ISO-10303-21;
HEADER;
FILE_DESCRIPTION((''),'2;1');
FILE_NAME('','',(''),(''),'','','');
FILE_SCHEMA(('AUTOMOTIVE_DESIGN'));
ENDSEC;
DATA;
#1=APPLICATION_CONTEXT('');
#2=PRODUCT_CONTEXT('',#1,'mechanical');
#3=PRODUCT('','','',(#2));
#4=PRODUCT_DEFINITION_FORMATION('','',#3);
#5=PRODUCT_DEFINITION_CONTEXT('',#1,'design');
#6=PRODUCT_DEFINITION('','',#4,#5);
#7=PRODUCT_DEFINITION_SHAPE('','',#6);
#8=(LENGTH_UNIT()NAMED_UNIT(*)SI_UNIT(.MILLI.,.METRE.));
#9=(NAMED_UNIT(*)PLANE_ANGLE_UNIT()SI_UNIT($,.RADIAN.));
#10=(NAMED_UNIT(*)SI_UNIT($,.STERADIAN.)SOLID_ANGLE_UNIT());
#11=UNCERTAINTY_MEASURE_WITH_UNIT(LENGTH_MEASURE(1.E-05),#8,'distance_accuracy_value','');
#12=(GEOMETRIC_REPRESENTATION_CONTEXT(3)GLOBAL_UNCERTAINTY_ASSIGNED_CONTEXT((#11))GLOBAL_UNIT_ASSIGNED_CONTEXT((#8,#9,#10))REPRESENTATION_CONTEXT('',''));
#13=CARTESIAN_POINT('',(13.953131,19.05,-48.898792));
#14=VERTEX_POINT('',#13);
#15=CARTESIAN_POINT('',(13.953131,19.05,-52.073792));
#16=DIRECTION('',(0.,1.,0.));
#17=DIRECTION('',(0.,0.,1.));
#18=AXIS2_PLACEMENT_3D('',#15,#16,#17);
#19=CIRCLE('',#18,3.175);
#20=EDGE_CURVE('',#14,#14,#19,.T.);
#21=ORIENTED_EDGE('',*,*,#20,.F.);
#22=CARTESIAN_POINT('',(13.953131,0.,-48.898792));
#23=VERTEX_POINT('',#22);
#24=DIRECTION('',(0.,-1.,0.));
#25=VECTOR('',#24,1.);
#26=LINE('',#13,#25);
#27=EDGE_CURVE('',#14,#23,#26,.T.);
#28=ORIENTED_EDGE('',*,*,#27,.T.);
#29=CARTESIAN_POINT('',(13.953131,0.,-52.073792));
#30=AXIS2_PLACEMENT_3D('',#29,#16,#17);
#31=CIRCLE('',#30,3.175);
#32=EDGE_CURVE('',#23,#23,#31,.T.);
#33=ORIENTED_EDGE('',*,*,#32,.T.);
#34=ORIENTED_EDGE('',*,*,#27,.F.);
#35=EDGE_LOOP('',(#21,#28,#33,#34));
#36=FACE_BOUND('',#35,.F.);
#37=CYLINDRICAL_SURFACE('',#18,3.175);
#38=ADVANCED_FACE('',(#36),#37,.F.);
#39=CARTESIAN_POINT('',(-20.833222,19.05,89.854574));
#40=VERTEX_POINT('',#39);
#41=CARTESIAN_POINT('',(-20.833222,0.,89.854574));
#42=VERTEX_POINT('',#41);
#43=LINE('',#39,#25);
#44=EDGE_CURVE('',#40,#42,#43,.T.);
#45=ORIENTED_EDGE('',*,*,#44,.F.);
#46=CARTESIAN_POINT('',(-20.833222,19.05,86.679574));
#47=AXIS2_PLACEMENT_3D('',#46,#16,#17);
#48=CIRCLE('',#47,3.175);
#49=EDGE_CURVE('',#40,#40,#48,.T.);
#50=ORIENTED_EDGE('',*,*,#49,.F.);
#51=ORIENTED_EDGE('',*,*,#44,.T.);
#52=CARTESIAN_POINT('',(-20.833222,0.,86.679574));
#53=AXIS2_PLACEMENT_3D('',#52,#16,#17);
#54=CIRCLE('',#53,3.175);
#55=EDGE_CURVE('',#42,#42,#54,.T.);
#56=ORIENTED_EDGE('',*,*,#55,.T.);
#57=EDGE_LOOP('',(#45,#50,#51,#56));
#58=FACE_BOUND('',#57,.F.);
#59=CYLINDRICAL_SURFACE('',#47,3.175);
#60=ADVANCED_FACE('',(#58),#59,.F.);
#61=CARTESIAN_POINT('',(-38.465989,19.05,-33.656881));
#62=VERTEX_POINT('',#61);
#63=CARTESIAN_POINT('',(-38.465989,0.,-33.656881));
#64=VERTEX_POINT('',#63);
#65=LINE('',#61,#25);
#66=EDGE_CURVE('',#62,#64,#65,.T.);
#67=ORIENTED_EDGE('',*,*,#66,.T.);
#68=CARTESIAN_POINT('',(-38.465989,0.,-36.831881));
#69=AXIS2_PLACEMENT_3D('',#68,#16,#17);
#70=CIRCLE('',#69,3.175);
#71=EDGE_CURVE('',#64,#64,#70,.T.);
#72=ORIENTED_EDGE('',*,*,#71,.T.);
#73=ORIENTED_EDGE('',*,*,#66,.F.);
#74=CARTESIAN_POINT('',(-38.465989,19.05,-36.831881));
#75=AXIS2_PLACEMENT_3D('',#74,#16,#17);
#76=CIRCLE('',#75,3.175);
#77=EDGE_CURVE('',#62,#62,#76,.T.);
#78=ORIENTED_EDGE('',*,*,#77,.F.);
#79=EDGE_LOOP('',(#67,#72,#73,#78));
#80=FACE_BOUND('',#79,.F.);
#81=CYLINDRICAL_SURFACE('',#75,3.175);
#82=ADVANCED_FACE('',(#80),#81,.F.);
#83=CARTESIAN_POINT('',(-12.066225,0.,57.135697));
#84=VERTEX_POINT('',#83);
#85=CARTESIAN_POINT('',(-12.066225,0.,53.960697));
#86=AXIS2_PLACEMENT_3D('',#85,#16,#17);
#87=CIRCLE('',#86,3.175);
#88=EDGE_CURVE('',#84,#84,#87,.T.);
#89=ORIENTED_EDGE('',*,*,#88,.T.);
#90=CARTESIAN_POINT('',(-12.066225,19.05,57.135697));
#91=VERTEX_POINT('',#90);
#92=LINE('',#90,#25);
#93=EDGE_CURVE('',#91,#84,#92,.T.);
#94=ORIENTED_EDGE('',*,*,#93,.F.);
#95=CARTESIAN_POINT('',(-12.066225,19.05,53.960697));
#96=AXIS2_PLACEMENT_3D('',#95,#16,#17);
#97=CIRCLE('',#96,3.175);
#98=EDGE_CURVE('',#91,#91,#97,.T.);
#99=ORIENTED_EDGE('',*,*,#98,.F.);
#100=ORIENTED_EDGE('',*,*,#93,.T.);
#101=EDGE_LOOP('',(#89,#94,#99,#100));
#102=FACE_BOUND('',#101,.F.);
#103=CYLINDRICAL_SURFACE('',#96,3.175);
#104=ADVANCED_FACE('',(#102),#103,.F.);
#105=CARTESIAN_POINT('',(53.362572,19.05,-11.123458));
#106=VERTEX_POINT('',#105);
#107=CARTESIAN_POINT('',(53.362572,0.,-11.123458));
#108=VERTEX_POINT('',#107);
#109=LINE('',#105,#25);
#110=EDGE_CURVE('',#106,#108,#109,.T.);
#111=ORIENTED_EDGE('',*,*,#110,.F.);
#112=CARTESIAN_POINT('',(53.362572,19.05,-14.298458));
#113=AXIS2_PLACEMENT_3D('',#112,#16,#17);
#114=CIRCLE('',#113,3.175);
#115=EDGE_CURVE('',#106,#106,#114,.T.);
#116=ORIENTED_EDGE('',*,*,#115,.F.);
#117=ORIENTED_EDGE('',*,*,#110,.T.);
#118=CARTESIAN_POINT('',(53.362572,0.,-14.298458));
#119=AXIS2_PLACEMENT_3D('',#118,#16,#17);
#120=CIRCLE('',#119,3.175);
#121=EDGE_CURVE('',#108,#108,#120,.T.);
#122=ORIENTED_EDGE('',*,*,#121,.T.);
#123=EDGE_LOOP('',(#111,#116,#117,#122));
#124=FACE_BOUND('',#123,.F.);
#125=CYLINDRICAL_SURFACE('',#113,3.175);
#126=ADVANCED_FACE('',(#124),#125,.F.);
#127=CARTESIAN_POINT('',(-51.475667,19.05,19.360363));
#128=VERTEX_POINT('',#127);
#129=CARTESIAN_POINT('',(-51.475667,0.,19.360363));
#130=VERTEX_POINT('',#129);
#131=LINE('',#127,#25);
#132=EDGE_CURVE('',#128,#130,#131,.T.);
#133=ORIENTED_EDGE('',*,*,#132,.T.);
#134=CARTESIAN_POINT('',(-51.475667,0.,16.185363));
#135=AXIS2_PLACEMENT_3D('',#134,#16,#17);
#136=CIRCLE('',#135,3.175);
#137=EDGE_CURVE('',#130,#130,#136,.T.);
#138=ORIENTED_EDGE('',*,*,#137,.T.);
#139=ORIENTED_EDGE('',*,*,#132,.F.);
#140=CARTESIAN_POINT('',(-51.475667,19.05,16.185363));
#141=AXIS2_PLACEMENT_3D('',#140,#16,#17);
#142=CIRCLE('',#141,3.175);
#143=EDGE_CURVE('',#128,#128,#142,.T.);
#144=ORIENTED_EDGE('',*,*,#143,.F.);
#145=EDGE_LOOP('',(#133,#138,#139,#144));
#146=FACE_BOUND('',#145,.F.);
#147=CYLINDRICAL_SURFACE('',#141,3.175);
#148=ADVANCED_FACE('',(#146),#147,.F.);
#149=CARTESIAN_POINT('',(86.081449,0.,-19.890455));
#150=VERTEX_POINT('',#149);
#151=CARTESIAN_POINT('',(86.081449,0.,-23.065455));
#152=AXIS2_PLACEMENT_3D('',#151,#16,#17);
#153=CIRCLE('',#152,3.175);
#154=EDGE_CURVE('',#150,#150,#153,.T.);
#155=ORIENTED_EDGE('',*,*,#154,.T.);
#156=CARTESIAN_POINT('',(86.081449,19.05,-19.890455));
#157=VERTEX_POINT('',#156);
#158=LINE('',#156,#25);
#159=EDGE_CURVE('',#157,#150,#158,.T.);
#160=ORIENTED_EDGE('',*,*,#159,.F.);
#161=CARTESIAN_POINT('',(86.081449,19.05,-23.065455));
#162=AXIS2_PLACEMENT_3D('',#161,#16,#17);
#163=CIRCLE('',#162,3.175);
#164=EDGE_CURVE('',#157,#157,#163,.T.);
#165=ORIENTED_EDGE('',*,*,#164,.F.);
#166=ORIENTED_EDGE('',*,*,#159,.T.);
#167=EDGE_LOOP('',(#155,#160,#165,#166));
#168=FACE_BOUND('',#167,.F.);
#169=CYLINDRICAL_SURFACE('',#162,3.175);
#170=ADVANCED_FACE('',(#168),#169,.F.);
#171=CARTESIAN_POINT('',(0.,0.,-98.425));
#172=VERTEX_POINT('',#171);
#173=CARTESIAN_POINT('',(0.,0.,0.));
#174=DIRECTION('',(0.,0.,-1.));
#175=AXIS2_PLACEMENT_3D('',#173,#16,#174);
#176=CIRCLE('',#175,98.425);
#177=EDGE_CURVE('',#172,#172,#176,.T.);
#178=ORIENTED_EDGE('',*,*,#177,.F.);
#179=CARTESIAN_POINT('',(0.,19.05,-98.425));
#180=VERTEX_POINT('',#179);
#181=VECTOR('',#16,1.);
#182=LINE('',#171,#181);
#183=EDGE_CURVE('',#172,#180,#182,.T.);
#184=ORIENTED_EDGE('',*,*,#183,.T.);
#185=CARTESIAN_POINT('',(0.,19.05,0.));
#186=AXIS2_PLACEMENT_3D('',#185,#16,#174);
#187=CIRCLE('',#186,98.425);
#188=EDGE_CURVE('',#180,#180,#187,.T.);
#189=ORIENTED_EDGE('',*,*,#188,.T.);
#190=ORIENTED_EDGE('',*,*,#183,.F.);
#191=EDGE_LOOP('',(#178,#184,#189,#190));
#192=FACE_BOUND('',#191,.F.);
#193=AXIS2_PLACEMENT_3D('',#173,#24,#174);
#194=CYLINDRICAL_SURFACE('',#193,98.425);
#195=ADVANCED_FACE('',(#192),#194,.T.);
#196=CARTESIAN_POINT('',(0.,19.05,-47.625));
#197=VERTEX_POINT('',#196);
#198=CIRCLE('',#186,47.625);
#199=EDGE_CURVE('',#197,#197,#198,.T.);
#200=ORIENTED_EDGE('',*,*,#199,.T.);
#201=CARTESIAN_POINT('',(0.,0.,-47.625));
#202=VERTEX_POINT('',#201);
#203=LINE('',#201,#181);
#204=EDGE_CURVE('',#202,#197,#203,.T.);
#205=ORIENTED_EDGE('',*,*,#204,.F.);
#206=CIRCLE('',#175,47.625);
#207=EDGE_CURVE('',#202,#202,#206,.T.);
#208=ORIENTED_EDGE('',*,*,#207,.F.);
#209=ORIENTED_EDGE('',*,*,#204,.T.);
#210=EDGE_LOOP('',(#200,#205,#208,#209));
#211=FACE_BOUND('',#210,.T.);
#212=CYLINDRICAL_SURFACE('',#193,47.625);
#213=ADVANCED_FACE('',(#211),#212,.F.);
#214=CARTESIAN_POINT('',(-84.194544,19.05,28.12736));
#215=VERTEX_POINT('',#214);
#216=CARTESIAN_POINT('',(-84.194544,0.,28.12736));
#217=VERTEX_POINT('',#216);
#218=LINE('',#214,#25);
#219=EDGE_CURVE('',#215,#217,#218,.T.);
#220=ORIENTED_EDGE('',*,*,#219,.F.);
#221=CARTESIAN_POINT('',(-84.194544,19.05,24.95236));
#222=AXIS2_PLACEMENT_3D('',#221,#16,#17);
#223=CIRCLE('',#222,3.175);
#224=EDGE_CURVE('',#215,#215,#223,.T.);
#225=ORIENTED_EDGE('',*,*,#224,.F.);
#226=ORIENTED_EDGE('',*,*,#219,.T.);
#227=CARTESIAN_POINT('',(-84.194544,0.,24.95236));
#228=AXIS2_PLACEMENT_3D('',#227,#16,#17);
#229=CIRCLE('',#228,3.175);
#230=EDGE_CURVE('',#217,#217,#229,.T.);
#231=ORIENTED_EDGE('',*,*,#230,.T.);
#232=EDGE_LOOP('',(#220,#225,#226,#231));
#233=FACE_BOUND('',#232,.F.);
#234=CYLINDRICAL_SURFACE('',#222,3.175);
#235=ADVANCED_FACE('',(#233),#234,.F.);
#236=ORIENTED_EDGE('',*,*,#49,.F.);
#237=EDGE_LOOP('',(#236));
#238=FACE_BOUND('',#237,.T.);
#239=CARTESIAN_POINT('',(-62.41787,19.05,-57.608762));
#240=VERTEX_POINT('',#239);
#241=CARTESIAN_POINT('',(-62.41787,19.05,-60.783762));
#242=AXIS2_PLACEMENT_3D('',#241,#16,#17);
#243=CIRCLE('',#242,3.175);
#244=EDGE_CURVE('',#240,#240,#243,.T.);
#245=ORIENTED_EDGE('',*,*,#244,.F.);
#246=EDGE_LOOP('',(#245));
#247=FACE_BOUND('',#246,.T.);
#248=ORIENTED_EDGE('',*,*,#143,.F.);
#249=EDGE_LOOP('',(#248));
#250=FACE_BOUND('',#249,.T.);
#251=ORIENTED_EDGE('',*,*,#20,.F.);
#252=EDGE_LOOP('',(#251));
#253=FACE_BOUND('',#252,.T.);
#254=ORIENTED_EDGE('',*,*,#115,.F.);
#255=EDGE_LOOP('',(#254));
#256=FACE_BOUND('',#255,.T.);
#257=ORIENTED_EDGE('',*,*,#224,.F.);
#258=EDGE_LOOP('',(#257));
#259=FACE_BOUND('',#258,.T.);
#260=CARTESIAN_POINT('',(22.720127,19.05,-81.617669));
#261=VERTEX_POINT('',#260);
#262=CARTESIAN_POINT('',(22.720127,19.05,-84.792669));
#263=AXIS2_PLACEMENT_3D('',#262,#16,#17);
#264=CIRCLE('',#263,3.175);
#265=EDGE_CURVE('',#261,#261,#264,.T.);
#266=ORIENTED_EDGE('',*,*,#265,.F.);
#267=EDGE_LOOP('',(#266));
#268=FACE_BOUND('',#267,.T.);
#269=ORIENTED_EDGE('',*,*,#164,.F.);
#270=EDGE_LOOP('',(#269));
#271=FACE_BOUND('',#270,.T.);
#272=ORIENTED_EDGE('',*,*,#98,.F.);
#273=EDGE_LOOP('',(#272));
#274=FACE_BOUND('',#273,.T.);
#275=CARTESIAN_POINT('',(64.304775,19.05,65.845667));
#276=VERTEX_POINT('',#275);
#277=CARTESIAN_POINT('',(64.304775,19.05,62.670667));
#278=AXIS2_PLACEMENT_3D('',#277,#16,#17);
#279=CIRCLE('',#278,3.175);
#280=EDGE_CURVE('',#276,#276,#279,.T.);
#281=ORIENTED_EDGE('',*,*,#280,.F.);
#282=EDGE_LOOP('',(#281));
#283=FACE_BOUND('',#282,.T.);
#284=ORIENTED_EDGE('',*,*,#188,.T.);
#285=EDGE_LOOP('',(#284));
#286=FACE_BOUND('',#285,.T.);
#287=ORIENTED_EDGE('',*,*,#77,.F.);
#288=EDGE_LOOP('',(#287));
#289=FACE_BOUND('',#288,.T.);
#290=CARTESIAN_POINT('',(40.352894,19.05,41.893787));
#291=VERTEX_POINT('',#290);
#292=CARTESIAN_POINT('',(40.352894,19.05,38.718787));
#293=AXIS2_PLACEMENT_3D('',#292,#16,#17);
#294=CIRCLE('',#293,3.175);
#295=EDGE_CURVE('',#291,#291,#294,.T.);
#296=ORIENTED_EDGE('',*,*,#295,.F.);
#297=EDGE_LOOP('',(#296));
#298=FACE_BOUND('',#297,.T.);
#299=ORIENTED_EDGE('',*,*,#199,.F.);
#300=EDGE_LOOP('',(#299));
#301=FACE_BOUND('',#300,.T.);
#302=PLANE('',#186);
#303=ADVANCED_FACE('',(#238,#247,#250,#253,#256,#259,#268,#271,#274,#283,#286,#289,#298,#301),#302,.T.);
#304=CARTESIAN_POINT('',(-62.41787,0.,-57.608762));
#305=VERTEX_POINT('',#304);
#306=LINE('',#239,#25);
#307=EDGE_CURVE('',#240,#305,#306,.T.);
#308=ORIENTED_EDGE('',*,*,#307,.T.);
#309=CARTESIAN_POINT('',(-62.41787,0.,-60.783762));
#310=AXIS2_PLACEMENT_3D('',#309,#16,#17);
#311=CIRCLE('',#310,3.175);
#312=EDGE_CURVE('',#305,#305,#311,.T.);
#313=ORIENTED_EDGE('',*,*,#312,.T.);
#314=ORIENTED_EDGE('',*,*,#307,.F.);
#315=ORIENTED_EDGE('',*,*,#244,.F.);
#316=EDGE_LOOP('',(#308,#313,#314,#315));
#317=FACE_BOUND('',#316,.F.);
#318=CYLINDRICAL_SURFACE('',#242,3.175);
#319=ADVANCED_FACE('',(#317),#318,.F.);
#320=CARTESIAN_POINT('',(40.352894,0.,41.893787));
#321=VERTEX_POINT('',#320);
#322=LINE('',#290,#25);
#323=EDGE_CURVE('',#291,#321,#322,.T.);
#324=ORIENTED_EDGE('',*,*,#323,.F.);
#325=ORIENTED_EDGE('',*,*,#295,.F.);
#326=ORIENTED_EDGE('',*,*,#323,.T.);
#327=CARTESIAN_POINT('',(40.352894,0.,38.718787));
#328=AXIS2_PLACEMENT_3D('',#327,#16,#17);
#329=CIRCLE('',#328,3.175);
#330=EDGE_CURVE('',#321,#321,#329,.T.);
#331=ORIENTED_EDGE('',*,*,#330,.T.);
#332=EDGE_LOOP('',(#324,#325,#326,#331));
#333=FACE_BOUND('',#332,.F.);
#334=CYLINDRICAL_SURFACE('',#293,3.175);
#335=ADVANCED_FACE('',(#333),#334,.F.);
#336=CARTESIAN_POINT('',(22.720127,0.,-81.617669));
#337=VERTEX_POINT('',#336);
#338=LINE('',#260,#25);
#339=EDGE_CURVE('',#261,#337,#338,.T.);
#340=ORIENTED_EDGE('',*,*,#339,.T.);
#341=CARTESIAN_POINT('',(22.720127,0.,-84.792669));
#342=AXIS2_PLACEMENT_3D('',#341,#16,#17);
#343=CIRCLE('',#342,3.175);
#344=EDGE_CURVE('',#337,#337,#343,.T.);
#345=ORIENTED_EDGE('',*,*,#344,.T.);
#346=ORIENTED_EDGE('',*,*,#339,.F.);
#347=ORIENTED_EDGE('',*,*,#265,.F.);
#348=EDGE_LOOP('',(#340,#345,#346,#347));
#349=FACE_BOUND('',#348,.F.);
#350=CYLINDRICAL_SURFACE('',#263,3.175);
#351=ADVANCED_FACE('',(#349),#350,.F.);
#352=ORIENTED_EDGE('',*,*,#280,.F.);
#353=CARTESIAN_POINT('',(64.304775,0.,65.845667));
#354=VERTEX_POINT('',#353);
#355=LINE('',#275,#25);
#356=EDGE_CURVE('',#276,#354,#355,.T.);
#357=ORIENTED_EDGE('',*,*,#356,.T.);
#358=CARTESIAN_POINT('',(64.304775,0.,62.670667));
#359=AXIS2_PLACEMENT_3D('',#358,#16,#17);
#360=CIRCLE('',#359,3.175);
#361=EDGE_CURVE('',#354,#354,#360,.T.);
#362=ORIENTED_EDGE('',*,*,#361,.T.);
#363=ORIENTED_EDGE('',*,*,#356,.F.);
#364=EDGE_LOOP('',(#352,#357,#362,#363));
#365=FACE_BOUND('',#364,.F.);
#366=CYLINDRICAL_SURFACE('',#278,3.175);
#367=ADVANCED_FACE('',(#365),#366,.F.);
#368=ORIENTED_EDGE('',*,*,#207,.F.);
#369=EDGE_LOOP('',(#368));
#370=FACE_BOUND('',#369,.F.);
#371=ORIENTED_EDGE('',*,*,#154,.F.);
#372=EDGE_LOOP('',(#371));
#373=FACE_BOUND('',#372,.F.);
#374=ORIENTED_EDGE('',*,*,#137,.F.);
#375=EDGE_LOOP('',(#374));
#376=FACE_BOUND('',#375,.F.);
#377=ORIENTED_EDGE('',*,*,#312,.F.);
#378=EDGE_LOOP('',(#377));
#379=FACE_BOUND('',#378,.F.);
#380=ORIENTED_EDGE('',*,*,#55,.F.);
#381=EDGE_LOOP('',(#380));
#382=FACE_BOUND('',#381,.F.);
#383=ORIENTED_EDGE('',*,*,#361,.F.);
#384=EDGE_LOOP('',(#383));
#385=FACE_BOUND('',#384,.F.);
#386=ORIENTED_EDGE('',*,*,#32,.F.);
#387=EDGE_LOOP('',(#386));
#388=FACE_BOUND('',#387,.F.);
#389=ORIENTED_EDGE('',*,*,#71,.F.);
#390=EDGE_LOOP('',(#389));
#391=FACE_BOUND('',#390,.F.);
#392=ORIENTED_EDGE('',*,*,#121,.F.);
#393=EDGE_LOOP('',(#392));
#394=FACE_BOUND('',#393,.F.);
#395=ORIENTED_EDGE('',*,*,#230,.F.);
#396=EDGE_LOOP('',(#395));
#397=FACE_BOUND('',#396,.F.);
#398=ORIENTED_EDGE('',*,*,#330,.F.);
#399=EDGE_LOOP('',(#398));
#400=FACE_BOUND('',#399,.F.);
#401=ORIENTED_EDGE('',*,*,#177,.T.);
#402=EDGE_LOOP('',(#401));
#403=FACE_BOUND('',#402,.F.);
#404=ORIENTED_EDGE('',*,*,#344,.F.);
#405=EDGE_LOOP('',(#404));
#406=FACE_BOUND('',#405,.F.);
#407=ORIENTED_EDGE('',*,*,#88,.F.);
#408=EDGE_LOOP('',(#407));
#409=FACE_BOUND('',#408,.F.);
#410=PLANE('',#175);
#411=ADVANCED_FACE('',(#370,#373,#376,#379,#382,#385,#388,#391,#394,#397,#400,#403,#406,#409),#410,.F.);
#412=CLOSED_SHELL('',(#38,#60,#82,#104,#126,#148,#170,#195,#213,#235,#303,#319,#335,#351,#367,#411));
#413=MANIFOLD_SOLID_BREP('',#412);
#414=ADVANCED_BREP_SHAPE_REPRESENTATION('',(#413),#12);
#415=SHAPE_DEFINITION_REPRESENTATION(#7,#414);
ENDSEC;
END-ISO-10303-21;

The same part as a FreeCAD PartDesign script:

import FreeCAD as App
import Part
import Sketcher

V = App.Vector
Q = App.Units.Quantity

doc = App.newDocument("Part")
body = doc.addObject("PartDesign::Body", "Body")

# Sketch on XZ plane
sketch1 = body.newObject("Sketcher::SketchObject", "Sketch")
sketch1.AttachmentSupport = (doc.getObject("XZ_Plane"), [""])
sketch1.MapMode = "FlatFace"
sketch1.addGeometry([
    Part.Circle(V(0, 0, 0), V(0, 0, 1), 98.425),
    Part.Circle(V(0, 0, 0), V(0, 0, 1), 47.625),
], False)
sketch1.addConstraint([
    Sketcher.Constraint("Coincident", 0, 3, -1, 1),
    Sketcher.Constraint("Coincident", 1, 3, -1, 1),
    Sketcher.Constraint("Diameter", 0, Q("7.75 in")),
    Sketcher.Constraint("Diameter", 1, Q("3.75 in")),
])
pad1 = body.newObject("PartDesign::Pad", "Pad")
pad1.Profile = sketch1
pad1.Length = Q("0.75 in")
pad1.Reversed = True

# Sketch on XZ plane
sketch2 = body.newObject("Sketcher::SketchObject", "Sketch001")
sketch2.AttachmentSupport = (doc.getObject("XZ_Plane"), [""])
sketch2.MapMode = "FlatFace"
sketch2.AttachmentOffset = App.Placement(V(0, 0, -0.75 * 25.4), App.Rotation())
sketch2.addGeometry([
    Part.Circle(V(53.362572, -14.298458, 0), V(0, 0, 1), 3.175),  # 0
    Part.Circle(V(86.081449, -23.065455, 0), V(0, 0, 1), 3.175),  # 1
    Part.Circle(V(40.352894, 38.718787, 0), V(0, 0, 1), 3.175),  # 2
    Part.Circle(V(64.304775, 62.670667, 0), V(0, 0, 1), 3.175),  # 3
    Part.Circle(V(-12.066225, 53.960697, 0), V(0, 0, 1), 3.175),  # 4
    Part.Circle(V(-20.833222, 86.679574, 0), V(0, 0, 1), 3.175),  # 5
    Part.Circle(V(-51.475667, 16.185363, 0), V(0, 0, 1), 3.175),  # 6
    Part.Circle(V(-84.194544, 24.95236, 0), V(0, 0, 1), 3.175),  # 7
    Part.Circle(V(-38.465989, -36.831881, 0), V(0, 0, 1), 3.175),  # 8
    Part.Circle(V(-62.41787, -60.783762, 0), V(0, 0, 1), 3.175),  # 9
    Part.Circle(V(13.953131, -52.073792, 0), V(0, 0, 1), 3.175),  # 10
    Part.Circle(V(22.720127, -84.792669, 0), V(0, 0, 1), 3.175),  # 11
], False)
sketch2.addConstraint([
    Sketcher.Constraint("Equal", 0, 1),
    Sketcher.Constraint("Equal", 1, 2),
    Sketcher.Constraint("Equal", 2, 3),
    Sketcher.Constraint("Equal", 3, 4),
    Sketcher.Constraint("Equal", 4, 5),
    Sketcher.Constraint("Equal", 5, 6),
    Sketcher.Constraint("Equal", 6, 7),
    Sketcher.Constraint("Equal", 7, 8),
    Sketcher.Constraint("Equal", 8, 9),
    Sketcher.Constraint("Equal", 9, 10),
    Sketcher.Constraint("Equal", 10, 11),
    Sketcher.Constraint("Diameter", 0, Q("0.25 in")),
    Sketcher.Constraint("DistanceX", 4, 3, 3, 3, 76.371),
    Sketcher.Constraint("DistanceX", 9, 3, 10, 3, 76.371),
    Sketcher.Constraint("DistanceY", 0, 3, -1, 1, 14.298458),
    Sketcher.Constraint("DistanceX", -1, 1, 1, 3, 86.081449),
    Sketcher.Constraint("DistanceY", -1, 1, 7, 3, 24.95236),
    Sketcher.Constraint("DistanceX", 8, 3, -1, 1, 38.465989),
    Sketcher.Constraint("DistanceY", 8, 3, -1, 1, 36.831881),
    Sketcher.Constraint("DistanceX", 9, 3, -1, 1, 62.41787),
    Sketcher.Constraint("DistanceY", 9, 3, -1, 1, 60.783762),
    Sketcher.Constraint("DistanceY", 11, 3, -1, 1, 84.792669),
    Sketcher.Constraint("DistanceY", 1, 3, 2, 3, 61.784241),
    Sketcher.Constraint("DistanceX", 2, 3, 3, 3, 23.95188),
    Sketcher.Constraint("DistanceY", 2, 3, 3, 3, 23.95188),
    Sketcher.Constraint("DistanceY", 2, 3, 4, 3, 15.241911),
    Sketcher.Constraint("DistanceX", 5, 3, 1, 3, 106.914671),
    Sketcher.Constraint("DistanceY", 1, 3, 5, 3, 109.745029),
    Sketcher.Constraint("DistanceX", 6, 3, 4, 3, 39.409442),
    Sketcher.Constraint("DistanceY", 6, 3, 5, 3, 70.494211),
    Sketcher.Constraint("DistanceX", 6, 3, 0, 3, 104.838239),
    Sketcher.Constraint("DistanceY", 0, 3, 6, 3, 30.483822),
    Sketcher.Constraint("DistanceX", 7, 3, 4, 3, 72.128319),
    Sketcher.Constraint("DistanceX", 8, 3, 0, 3, 91.828561),
    Sketcher.Constraint("DistanceY", 10, 3, 8, 3, 15.241911),
    Sketcher.Constraint("DistanceX", -1, 1, 11, 3, 22.720127),
])
pocket1 = body.newObject("PartDesign::Pocket", "Pocket")
pocket1.Profile = sketch2
pocket1.Length = Q("0.75 in")
pocket1.Reversed = True

doc.recompute()
